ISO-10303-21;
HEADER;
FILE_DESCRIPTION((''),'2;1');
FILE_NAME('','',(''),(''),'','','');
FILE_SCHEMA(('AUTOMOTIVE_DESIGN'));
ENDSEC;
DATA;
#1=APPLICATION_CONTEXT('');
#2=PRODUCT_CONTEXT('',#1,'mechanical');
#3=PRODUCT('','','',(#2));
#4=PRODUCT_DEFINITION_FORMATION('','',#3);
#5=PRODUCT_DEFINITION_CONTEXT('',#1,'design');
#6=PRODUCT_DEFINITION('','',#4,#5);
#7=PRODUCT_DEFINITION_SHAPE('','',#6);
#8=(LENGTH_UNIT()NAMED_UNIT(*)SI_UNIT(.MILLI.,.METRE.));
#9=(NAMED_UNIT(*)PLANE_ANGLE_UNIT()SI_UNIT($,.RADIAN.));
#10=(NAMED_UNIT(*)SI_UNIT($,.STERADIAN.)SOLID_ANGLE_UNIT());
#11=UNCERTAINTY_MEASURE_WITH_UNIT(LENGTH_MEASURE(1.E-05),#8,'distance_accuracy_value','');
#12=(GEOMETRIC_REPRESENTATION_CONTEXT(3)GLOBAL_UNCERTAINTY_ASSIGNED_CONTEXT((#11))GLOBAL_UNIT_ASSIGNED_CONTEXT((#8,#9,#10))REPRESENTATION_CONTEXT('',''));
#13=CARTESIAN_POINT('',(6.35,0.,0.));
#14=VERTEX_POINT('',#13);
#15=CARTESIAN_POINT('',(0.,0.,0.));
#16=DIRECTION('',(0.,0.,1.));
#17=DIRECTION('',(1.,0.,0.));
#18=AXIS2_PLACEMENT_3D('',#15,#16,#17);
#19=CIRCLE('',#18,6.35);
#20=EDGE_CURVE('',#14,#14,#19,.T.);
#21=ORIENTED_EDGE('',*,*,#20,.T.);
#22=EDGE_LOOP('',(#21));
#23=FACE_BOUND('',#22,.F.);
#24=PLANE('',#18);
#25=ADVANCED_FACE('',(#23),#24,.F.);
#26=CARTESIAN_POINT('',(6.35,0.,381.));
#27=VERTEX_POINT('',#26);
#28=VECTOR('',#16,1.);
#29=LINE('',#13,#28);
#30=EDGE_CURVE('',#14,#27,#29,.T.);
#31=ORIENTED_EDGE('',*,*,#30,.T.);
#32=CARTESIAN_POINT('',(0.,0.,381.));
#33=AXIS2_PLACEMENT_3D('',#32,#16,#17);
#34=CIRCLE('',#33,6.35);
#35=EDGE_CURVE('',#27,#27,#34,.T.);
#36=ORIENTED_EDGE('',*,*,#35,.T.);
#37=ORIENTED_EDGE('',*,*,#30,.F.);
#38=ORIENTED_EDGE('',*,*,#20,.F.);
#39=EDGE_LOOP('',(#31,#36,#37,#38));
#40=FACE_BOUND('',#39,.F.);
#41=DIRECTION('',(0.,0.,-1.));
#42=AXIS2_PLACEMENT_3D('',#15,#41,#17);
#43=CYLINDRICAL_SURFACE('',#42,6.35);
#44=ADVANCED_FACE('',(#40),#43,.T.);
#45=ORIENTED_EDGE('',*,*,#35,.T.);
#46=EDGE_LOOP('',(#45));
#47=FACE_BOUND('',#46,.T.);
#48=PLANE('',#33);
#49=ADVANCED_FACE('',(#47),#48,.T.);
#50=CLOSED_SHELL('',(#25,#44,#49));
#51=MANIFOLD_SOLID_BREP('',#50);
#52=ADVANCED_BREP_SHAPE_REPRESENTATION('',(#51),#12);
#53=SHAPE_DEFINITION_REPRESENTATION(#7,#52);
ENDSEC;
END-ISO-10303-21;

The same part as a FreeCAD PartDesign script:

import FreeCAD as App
import Part
import Sketcher
from FreeCAD import Vector
Q = App.Units.Quantity

doc = App.newDocument("Part")
body = doc.addObject("PartDesign::Body", "Body")

sketch1 = body.newObject("Sketcher::SketchObject", "Sketch")
sketch1.AttachmentSupport = (doc.getObject("XY_Plane"), [""])
sketch1.MapMode = "FlatFace"
sketch1.addGeometry(Part.Circle(Vector(0, 0, 0), Vector(0, 0, 1), 6), False)
sketch1.addConstraint(Sketcher.Constraint("Coincident", 0, 3, -1, 1))
sketch1.addConstraint(Sketcher.Constraint("Diameter", 0, Q("0.5 in")))
pad1 = body.newObject("PartDesign::Pad", "Pad")
pad1.Profile = sketch1
pad1.Length = Q("15 in")

doc.recompute()
